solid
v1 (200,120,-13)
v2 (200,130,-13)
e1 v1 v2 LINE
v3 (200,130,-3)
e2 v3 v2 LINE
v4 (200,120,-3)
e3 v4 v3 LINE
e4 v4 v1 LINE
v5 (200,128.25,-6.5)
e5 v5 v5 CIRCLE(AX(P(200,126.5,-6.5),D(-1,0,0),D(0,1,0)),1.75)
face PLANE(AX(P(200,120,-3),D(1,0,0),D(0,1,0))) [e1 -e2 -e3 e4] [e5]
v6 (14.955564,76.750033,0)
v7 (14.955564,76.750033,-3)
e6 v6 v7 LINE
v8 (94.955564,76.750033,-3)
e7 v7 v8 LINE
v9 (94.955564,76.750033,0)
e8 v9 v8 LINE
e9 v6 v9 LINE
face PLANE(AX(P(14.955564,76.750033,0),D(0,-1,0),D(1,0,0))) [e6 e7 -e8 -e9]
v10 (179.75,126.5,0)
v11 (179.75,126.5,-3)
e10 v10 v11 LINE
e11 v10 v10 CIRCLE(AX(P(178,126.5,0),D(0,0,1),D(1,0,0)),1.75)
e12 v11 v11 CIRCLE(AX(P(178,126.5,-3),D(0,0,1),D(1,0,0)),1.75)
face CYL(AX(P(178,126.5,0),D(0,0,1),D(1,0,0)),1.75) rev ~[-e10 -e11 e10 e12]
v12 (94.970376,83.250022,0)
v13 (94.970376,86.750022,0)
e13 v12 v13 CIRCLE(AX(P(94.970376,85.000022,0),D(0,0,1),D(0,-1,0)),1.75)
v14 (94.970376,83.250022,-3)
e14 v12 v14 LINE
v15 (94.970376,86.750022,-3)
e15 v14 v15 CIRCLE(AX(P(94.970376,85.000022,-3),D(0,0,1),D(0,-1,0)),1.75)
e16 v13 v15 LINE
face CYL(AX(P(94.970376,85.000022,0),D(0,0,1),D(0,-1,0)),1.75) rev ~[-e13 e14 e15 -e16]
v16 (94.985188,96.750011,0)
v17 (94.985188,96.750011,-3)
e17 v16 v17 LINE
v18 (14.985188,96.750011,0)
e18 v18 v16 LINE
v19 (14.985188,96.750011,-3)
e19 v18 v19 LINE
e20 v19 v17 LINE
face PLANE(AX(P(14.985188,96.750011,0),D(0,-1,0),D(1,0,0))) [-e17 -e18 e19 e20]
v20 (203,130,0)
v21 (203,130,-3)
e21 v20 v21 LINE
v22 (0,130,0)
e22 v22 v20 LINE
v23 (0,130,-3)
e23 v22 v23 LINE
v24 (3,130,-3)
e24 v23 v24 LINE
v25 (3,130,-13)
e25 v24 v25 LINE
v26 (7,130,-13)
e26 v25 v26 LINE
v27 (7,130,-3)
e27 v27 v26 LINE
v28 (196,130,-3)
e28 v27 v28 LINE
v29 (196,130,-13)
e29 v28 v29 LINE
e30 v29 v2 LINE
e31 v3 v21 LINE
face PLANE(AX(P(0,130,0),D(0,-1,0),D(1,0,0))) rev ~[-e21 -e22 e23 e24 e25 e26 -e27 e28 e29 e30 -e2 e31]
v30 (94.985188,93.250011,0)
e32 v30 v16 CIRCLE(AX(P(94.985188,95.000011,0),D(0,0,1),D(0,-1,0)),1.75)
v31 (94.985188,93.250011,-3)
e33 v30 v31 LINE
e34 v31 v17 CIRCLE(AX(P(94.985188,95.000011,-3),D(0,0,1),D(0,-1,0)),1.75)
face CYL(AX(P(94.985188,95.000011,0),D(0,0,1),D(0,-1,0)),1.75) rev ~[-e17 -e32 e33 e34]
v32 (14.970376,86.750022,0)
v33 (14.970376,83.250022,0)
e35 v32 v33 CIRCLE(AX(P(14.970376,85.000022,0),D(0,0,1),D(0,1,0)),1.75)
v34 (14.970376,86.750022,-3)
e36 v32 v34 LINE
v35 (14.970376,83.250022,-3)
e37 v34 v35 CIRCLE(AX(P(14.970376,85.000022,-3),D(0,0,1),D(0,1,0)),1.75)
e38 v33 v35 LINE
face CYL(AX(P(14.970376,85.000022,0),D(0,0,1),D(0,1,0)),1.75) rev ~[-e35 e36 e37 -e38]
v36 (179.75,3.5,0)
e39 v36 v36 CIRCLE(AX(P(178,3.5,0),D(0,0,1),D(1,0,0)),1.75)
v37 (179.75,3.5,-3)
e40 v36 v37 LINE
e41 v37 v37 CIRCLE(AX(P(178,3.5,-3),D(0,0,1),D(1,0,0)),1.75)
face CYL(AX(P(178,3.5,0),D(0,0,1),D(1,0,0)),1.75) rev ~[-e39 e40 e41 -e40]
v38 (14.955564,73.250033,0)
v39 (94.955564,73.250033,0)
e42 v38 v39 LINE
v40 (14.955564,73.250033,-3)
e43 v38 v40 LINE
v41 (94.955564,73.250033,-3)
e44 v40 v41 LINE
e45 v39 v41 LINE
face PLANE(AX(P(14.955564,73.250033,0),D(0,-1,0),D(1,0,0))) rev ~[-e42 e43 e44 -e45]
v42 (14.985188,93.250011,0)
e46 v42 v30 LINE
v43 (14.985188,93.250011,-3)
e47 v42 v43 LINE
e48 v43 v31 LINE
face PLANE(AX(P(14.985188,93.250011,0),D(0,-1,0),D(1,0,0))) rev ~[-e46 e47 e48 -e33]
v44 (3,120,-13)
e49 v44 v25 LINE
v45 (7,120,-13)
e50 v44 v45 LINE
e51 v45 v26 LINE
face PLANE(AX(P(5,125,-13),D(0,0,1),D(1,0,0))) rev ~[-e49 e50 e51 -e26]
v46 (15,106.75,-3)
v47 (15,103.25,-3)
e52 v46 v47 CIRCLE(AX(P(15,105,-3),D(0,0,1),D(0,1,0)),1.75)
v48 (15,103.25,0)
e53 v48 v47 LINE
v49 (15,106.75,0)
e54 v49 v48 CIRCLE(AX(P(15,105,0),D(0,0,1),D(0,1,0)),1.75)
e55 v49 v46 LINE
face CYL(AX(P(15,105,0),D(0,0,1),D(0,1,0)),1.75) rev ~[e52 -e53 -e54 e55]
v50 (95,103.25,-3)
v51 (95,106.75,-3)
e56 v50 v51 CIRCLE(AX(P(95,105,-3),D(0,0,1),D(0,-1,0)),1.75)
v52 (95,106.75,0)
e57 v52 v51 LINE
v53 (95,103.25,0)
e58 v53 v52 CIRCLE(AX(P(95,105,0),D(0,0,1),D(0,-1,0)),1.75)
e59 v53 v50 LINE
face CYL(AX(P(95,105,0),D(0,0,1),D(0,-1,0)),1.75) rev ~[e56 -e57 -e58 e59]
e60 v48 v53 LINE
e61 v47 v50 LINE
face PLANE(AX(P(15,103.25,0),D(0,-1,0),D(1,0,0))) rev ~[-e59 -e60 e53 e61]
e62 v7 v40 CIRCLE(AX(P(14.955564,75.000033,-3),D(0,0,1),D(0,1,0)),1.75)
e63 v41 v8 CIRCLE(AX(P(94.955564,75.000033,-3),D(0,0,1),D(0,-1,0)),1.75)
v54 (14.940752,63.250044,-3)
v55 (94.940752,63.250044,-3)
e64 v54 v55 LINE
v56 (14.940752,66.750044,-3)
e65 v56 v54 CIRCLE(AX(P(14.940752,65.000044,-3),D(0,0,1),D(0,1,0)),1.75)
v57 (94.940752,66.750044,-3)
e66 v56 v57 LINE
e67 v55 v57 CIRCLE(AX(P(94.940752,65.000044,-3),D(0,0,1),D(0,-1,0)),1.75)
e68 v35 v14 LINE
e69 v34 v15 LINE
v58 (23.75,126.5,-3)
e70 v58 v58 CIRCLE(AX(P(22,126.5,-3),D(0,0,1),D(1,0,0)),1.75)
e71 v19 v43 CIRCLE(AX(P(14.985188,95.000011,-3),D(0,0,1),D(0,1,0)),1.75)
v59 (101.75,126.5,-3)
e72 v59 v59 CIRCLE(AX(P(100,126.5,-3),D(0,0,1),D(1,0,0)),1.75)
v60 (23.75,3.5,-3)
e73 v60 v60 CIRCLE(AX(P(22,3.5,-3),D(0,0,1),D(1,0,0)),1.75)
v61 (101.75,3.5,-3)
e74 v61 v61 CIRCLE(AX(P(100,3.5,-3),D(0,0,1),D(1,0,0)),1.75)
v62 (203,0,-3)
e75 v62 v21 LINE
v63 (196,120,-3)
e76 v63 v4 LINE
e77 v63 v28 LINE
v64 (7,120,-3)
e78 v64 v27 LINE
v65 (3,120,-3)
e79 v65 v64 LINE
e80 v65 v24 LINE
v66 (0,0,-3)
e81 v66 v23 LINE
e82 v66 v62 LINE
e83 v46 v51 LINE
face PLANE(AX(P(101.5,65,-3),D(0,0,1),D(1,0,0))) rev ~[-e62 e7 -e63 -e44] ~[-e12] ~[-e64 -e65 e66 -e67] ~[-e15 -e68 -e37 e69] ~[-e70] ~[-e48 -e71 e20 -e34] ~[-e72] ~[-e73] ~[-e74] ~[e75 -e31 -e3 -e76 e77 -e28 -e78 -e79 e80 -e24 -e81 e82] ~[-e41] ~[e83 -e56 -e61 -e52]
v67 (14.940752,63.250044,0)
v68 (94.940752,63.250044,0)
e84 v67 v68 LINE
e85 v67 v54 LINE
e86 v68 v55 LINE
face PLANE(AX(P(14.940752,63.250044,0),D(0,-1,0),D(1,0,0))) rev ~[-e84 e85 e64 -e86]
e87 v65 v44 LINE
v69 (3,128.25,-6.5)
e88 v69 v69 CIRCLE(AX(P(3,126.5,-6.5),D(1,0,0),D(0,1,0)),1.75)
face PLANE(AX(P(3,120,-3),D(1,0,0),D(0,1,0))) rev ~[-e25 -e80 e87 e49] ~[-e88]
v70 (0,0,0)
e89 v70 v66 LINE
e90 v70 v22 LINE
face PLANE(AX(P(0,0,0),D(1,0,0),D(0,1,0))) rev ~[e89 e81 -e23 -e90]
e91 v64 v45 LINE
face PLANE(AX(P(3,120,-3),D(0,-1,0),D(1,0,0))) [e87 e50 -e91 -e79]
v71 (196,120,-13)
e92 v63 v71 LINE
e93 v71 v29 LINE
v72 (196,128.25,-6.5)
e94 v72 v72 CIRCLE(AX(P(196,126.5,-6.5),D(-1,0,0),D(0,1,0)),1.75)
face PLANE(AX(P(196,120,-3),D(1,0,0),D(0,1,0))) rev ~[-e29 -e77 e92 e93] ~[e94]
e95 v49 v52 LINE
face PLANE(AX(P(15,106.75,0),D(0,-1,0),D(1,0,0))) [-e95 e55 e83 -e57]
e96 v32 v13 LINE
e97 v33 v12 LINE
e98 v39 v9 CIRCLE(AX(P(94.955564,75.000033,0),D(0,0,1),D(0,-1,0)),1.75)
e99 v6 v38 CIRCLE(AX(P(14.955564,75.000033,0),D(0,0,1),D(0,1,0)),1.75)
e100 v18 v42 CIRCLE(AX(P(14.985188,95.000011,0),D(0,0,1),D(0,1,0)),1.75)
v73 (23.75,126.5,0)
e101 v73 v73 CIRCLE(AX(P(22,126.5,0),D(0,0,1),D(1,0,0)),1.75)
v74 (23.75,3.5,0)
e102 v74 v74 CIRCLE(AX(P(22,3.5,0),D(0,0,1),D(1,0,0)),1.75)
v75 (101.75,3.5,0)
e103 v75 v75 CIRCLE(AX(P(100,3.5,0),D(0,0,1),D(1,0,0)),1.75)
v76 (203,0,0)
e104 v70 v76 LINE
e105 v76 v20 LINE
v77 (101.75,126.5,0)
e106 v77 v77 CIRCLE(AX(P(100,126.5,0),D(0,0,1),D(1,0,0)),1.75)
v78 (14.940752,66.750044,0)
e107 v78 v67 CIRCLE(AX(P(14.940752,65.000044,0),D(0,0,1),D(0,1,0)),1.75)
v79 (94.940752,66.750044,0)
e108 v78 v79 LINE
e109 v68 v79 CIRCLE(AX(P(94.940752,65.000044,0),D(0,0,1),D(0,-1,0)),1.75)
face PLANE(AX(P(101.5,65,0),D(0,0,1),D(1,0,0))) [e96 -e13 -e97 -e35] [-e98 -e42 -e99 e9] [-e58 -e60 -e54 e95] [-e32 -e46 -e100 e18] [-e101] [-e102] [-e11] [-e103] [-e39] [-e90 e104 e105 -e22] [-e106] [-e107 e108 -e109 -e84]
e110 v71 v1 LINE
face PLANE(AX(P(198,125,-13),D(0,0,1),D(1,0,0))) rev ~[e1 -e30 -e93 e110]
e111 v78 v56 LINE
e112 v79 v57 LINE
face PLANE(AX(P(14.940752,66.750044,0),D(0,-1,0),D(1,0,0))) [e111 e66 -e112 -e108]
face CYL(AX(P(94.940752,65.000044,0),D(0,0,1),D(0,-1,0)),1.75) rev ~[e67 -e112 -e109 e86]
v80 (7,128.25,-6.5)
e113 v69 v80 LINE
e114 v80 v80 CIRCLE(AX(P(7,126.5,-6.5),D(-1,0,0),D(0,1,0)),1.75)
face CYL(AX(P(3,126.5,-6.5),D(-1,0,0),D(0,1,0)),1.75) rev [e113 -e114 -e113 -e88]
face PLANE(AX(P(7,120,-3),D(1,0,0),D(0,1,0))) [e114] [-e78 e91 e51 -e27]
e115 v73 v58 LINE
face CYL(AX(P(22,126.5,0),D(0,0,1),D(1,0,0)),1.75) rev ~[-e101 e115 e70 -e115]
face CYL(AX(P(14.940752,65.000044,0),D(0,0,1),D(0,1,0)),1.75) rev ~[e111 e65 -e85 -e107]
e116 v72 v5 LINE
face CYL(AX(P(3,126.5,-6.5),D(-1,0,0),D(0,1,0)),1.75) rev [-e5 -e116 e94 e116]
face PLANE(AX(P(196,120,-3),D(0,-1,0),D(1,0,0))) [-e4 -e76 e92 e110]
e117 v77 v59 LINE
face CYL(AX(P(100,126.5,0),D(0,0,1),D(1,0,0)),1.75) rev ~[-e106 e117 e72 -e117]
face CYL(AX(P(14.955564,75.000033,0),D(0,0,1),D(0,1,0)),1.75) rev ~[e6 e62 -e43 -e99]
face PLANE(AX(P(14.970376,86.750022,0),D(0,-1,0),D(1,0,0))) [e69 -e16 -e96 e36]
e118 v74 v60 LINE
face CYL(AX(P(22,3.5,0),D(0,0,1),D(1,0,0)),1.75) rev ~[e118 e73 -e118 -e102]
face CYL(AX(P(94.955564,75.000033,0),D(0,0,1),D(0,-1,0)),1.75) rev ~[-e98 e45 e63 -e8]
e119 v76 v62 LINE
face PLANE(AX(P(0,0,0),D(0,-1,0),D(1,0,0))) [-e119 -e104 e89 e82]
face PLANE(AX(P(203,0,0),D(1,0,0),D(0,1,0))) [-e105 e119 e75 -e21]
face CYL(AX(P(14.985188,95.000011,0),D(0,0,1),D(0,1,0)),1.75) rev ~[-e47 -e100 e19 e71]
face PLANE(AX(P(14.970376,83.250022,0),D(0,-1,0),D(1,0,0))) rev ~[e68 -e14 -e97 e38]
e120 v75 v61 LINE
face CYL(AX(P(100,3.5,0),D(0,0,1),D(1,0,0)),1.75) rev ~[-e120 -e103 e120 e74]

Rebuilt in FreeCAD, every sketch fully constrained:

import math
import FreeCAD as App
import Part
import Sketcher

V = App.Vector


def add_polygon(sketch, points):
    """Adds a closed chain of lines whose ends are joined by coincident constraints."""
    first, n = sketch.GeometryCount, len(points)
    for a, b in zip(points, points[1:] + points[:1]):
        sketch.addGeometry(Part.LineSegment(App.Vector(*a, 0), App.Vector(*b, 0)), False)
    for i in range(n):
        sketch.addConstraint(Sketcher.Constraint("Coincident", first + i, 2, first + (i + 1) % n, 1))

doc = App.newDocument("Part")
params = doc.addObject("Spreadsheet::Sheet", "Params")
for row, (alias, value) in enumerate([
    ("sketch1_diameter", "3.5 mm"),
    ("sketch1_width", "203 mm"),
    ("sketch1_width2", "80 mm"),
    ("sketch1_height", "130 mm"),
    ("pad1_length", "3 mm"),
    ("sketch2_width", "4 mm"),
    ("sketch2_height", "10 mm"),
    ("pad2_length", "10 mm"),
    ("sketch3_diameter", "3.5 mm"),
    ("sketch3_width", "95 mm"),
    ("sketch3_height", "4 mm"),
    ("pocket1_length", "225 mm"),
    ("sketch4_diameter", "3.5 mm"),
], start=1):
    params.set(f"A{row}", alias)
    params.set(f"B{row}", "=" + value)
    params.setAlias(f"B{row}", alias)

body = doc.addObject("PartDesign::Body", "Body")

# Sketch on XY plane
sketch1 = body.newObject("Sketcher::SketchObject", "Sketch")
sketch1.AttachmentSupport = (doc.getObject("XY_Plane"), [""])
sketch1.MapMode = "FlatFace"
add_polygon(sketch1, [(0, 130), (0, 0), (203, 0), (203, 130)])  # lines 0-3
sketch1.addGeometry(Part.Circle(V(22, 3.5, 0), V(0, 0, 1), 1.8), False)  # 4
sketch1.addGeometry(Part.Circle(V(100, 3.5, 0), V(0, 0, 1), 1.8), False)  # 5
sketch1.addGeometry(Part.Circle(V(178, 3.5, 0), V(0, 0, 1), 1.8), False)  # 6
sketch1.addGeometry(Part.ArcOfCircle(Part.Circle(V(14.9, 65, 0), V(0, 0, 1), 1.8), math.radians(90), math.radians(270)), False)  # 7
sketch1.addGeometry(Part.LineSegment(V(14.9, 66.8, 0), V(94.9, 66.8, 0)), False)  # 8
sketch1.addGeometry(Part.ArcOfCircle(Part.Circle(V(94.9, 65, 0), V(0, 0, 1), 1.8), math.radians(-90), math.radians(90)), False)  # 9
sketch1.addGeometry(Part.LineSegment(V(94.9, 63.3, 0), V(14.9, 63.3, 0)), False)  # 10
sketch1.addGeometry(Part.ArcOfCircle(Part.Circle(V(15, 75, 0), V(0, 0, 1), 1.8), math.radians(90), math.radians(270)), False)  # 11
sketch1.addGeometry(Part.LineSegment(V(15, 76.8, 0), V(95, 76.8, 0)), False)  # 12
sketch1.addGeometry(Part.ArcOfCircle(Part.Circle(V(95, 75, 0), V(0, 0, 1), 1.8), math.radians(-90), math.radians(90)), False)  # 13
sketch1.addGeometry(Part.LineSegment(V(95, 73.3, 0), V(15, 73.3, 0)), False)  # 14
sketch1.addGeometry(Part.ArcOfCircle(Part.Circle(V(15, 85, 0), V(0, 0, 1), 1.8), math.radians(90), math.radians(270)), False)  # 15
sketch1.addGeometry(Part.LineSegment(V(15, 86.8, 0), V(95, 86.8, 0)), False)  # 16
sketch1.addGeometry(Part.ArcOfCircle(Part.Circle(V(95, 85, 0), V(0, 0, 1), 1.8), math.radians(-90), math.radians(90)), False)  # 17
sketch1.addGeometry(Part.LineSegment(V(95, 83.3, 0), V(15, 83.3, 0)), False)  # 18
sketch1.addGeometry(Part.ArcOfCircle(Part.Circle(V(15, 95, 0), V(0, 0, 1), 1.8), math.radians(90), math.radians(270)), False)  # 19
sketch1.addGeometry(Part.LineSegment(V(15, 96.8, 0), V(95, 96.8, 0)), False)  # 20
sketch1.addGeometry(Part.ArcOfCircle(Part.Circle(V(95, 95, 0), V(0, 0, 1), 1.8), math.radians(-90), math.radians(90)), False)  # 21
sketch1.addGeometry(Part.LineSegment(V(95, 93.3, 0), V(15, 93.3, 0)), False)  # 22
sketch1.addGeometry(Part.Circle(V(22, 126.5, 0), V(0, 0, 1), 1.8), False)  # 23
sketch1.addGeometry(Part.ArcOfCircle(Part.Circle(V(15, 105, 0), V(0, 0, 1), 1.8), math.radians(90), math.radians(270)), False)  # 24
sketch1.addGeometry(Part.LineSegment(V(15, 106.8, 0), V(95, 106.8, 0)), False)  # 25
sketch1.addGeometry(Part.ArcOfCircle(Part.Circle(V(95, 105, 0), V(0, 0, 1), 1.8), math.radians(-90), math.radians(90)), False)  # 26
sketch1.addGeometry(Part.LineSegment(V(95, 103.2, 0), V(15, 103.2, 0)), False)  # 27
sketch1.addGeometry(Part.Circle(V(100, 126.5, 0), V(0, 0, 1), 1.8), False)  # 28
sketch1.addGeometry(Part.Circle(V(178, 126.5, 0), V(0, 0, 1), 1.8), False)  # 29
sketch1.addConstraint([
    Sketcher.Constraint("Tangent", 7, 1, 8, 1),
    Sketcher.Constraint("Tangent", 8, 2, 9, 2),
    Sketcher.Constraint("Tangent", 9, 1, 10, 1),
    Sketcher.Constraint("Tangent", 10, 2, 7, 2),
    Sketcher.Constraint("Tangent", 11, 1, 12, 1),
    Sketcher.Constraint("Tangent", 12, 2, 13, 2),
    Sketcher.Constraint("Tangent", 13, 1, 14, 1),
    Sketcher.Constraint("Tangent", 14, 2, 11, 2),
    Sketcher.Constraint("Tangent", 15, 1, 16, 1),
    Sketcher.Constraint("Tangent", 16, 2, 17, 2),
    Sketcher.Constraint("Tangent", 17, 1, 18, 1),
    Sketcher.Constraint("Tangent", 18, 2, 15, 2),
    Sketcher.Constraint("Tangent", 19, 1, 20, 1),
    Sketcher.Constraint("Tangent", 20, 2, 21, 2),
    Sketcher.Constraint("Tangent", 21, 1, 22, 1),
    Sketcher.Constraint("Tangent", 22, 2, 19, 2),
    Sketcher.Constraint("Tangent", 24, 1, 25, 1),
    Sketcher.Constraint("Tangent", 25, 2, 26, 2),
    Sketcher.Constraint("Tangent", 26, 1, 27, 1),
    Sketcher.Constraint("Tangent", 27, 2, 24, 2),
    Sketcher.Constraint("Vertical", 0),
    Sketcher.Constraint("Horizontal", 1),
    Sketcher.Constraint("Vertical", 2),
    Sketcher.Constraint("Horizontal", 3),
    Sketcher.Constraint("Horizontal", 8),
    Sketcher.Constraint("Horizontal", 10),
    Sketcher.Constraint("Horizontal", 12),
    Sketcher.Constraint("Horizontal", 14),
    Sketcher.Constraint("Horizontal", 16),
    Sketcher.Constraint("Horizontal", 18),
    Sketcher.Constraint("Horizontal", 20),
    Sketcher.Constraint("Horizontal", 22),
    Sketcher.Constraint("Horizontal", 25),
    Sketcher.Constraint("Horizontal", 27),
    Sketcher.Constraint("Coincident", 0, 2, -1, 1),
    Sketcher.Constraint("Equal", 4, 5),
    Sketcher.Constraint("Equal", 5, 6),
    Sketcher.Constraint("Equal", 6, 7),
    Sketcher.Constraint("Equal", 9, 11),
    Sketcher.Constraint("Equal", 13, 15),
    Sketcher.Constraint("Equal", 17, 19),
    Sketcher.Constraint("Equal", 21, 23),
    Sketcher.Constraint("Equal", 23, 24),
    Sketcher.Constraint("Equal", 26, 28),
    Sketcher.Constraint("Equal", 28, 29),
    Sketcher.Constraint("Horizontal", 4, 3, 5, 3),
    Sketcher.Constraint("Horizontal", 5, 3, 6, 3),
    Sketcher.Constraint("Horizontal", 23, 3, 28, 3),
    Sketcher.Constraint("Horizontal", 28, 3, 29, 3),
    Sketcher.Constraint("Vertical", 4, 3, 23, 3),
    Sketcher.Constraint("Vertical", 5, 3, 28, 3),
    Sketcher.Constraint("Vertical", 6, 3, 29, 3),
    Sketcher.Constraint("Equal", 10, 12),
    Sketcher.Constraint("Equal", 14, 16),
    Sketcher.Constraint("Equal", 18, 20),
    Sketcher.Constraint("Equal", 22, 25),
    Sketcher.Constraint("Diameter", 4, 3.5),
    Sketcher.Constraint("DistanceX", 1, 1, 1, 2, 203.0),
    Sketcher.Constraint("DistanceX", 8, 1, 8, 2, 80.0),
    Sketcher.Constraint("DistanceY", 0, 2, 0, 1, 130.0),
    Sketcher.Constraint("DistanceX", -1, 1, 4, 3, 22.0),
    Sketcher.Constraint("DistanceX", -1, 1, 5, 3, 100.0),
    Sketcher.Constraint("DistanceX", -1, 1, 6, 3, 178.0),
    Sketcher.Constraint("DistanceX", -1, 1, 24, 3, 15.0),
    Sketcher.Constraint("DistanceY", -1, 1, 24, 3, 105.0),
    Sketcher.Constraint("DistanceY", -1, 1, 4, 3, 3.5),
    Sketcher.Constraint("DistanceY", -1, 1, 23, 3, 126.5),
    Sketcher.Constraint("DistanceY", -1, 1, 15, 3, 85.000022),
    Sketcher.Constraint("DistanceX", -1, 1, 19, 3, 14.985188),
    Sketcher.Constraint("DistanceY", -1, 1, 19, 3, 95.000011),
    Sketcher.Constraint("DistanceX", 7, 3, 4, 3, 7.059248),
    Sketcher.Constraint("DistanceY", 7, 3, 11, 3, 9.999989),
    Sketcher.Constraint("DistanceX", 11, 3, 9, 3, 79.985188),
    Sketcher.Constraint("DistanceX", 11, 3, 15, 3, 0.014812),
    Sketcher.Constraint("DistanceY", 11, 3, 15, 3, 9.999989),
])
sketch1.setExpression("Constraints[60]", "Params.sketch1_diameter")
sketch1.setExpression("Constraints[61]", "Params.sketch1_width")
sketch1.setExpression("Constraints[62]", "Params.sketch1_width2")
sketch1.setExpression("Constraints[63]", "Params.sketch1_height")
pad1 = body.newObject("PartDesign::Pad", "Pad")
pad1.Profile = sketch1
pad1.setExpression("Length", "Params.pad1_length")
pad1.Reversed = True

# Sketch on XY plane
sketch2 = body.newObject("Sketcher::SketchObject", "Sketch001")
sketch2.AttachmentSupport = (doc.getObject("XY_Plane"), [""])
sketch2.MapMode = "FlatFace"
sketch2.AttachmentOffset = App.Placement(V(0, 0, -3), App.Rotation())
add_polygon(sketch2, [(196, 130), (196, 120), (200, 120), (200, 130)])  # lines 0-3
add_polygon(sketch2, [(3, 130), (3, 120), (7, 120), (7, 130)])  # lines 4-7
sketch2.addConstraint([
    Sketcher.Constraint("Vertical", 0),
    Sketcher.Constraint("Horizontal", 1),
    Sketcher.Constraint("Vertical", 2),
    Sketcher.Constraint("Horizontal", 3),
    Sketcher.Constraint("Vertical", 4),
    Sketcher.Constraint("Horizontal", 5),
    Sketcher.Constraint("Vertical", 6),
    Sketcher.Constraint("Horizontal", 7),
    Sketcher.Constraint("Horizontal", 1, 2, 4, 2),
    Sketcher.Constraint("Horizontal", 3, 2, 6, 2),
    Sketcher.Constraint("Equal", 3, 5),
    Sketcher.Constraint("DistanceX", 1, 1, 1, 2, 4.0),
    Sketcher.Constraint("DistanceY", 0, 2, 0, 1, 10.0),
    Sketcher.Constraint("DistanceX", -1, 1, 0, 2, 196.0),
    Sketcher.Constraint("DistanceY", -1, 1, 0, 2, 120.0),
    Sketcher.Constraint("DistanceX", -1, 1, 4, 2, 3.0),
])
sketch2.setExpression("Constraints[19]", "Params.sketch2_width")
sketch2.setExpression("Constraints[20]", "Params.sketch2_height")
pad2 = body.newObject("PartDesign::Pad", "Pad001")
pad2.Profile = sketch2
pad2.setExpression("Length", "Params.pad2_length")
pad2.Reversed = True

# Sketch on YZ plane
sketch3 = body.newObject("Sketcher::SketchObject", "Sketch002")
sketch3.AttachmentSupport = (doc.getObject("YZ_Plane"), [""])
sketch3.MapMode = "FlatFace"
sketch3.AttachmentOffset = App.Placement(V(0, 0, 107), App.Rotation())
sketch3.addGeometry(Part.Circle(V(-51, 7, 0), V(0, 0, 1), 1.8), False)  # 0
sketch3.addGeometry(Part.Circle(V(61, 7, 0), V(0, 0, 1), 1.8), False)  # 1
add_polygon(sketch3, [(-40, 13), (-40, 9), (55, 9), (55, 13)])  # lines 2-5
sketch3.addConstraint([
    Sketcher.Constraint("Vertical", 2),
    Sketcher.Constraint("Horizontal", 3),
    Sketcher.Constraint("Vertical", 4),
    Sketcher.Constraint("Horizontal", 5),
    Sketcher.Constraint("Equal", 0, 1),
    Sketcher.Constraint("Horizontal", 0, 3, 1, 3),
    Sketcher.Constraint("Diameter", 0, 3.5),
    Sketcher.Constraint("DistanceX", 3, 1, 3, 2, 95.0),
    Sketcher.Constraint("DistanceY", 2, 2, 2, 1, 4.0),
    Sketcher.Constraint("DistanceX", 0, 3, -1, 1, 51.0),
    Sketcher.Constraint("DistanceY", -1, 1, 0, 3, 7.0),
    Sketcher.Constraint("DistanceX", -1, 1, 1, 3, 61.0),
    Sketcher.Constraint("DistanceX", 2, 2, -1, 1, 40.0),
    Sketcher.Constraint("DistanceY", -1, 1, 2, 2, 9.0),
])
sketch3.setExpression("Constraints[10]", "Params.sketch3_diameter")
sketch3.setExpression("Constraints[11]", "Params.sketch3_width")
sketch3.setExpression("Constraints[12]", "Params.sketch3_height")
pocket1 = body.newObject("PartDesign::Pocket", "Pocket")
pocket1.Profile = sketch3
pocket1.setExpression("Length", "Params.pocket1_length")

# Sketch on YZ plane
sketch4 = body.newObject("Sketcher::SketchObject", "Sketch003")
sketch4.AttachmentSupport = (doc.getObject("YZ_Plane"), [""])
sketch4.MapMode = "FlatFace"
sketch4.AttachmentOffset = App.Placement(V(0, 0, 3), App.Rotation())
sketch4.addGeometry(Part.Circle(V(126.5, -6.5, 0), V(0, 0, 1), 1.8), False)
sketch4.addConstraint([
    Sketcher.Constraint("Diameter", 0, 3.5),
    Sketcher.Constraint("DistanceX", -1, 1, 0, 3, 126.5),
    Sketcher.Constraint("DistanceY", 0, 3, -1, 1, 6.5),
])
sketch4.setExpression("Constraints[0]", "Params.sketch4_diameter")
pocket2 = body.newObject("PartDesign::Pocket", "Pocket001")
pocket2.Profile = sketch4
pocket2.Type = "ThroughAll"
pocket2.Reversed = True

doc.recompute()
